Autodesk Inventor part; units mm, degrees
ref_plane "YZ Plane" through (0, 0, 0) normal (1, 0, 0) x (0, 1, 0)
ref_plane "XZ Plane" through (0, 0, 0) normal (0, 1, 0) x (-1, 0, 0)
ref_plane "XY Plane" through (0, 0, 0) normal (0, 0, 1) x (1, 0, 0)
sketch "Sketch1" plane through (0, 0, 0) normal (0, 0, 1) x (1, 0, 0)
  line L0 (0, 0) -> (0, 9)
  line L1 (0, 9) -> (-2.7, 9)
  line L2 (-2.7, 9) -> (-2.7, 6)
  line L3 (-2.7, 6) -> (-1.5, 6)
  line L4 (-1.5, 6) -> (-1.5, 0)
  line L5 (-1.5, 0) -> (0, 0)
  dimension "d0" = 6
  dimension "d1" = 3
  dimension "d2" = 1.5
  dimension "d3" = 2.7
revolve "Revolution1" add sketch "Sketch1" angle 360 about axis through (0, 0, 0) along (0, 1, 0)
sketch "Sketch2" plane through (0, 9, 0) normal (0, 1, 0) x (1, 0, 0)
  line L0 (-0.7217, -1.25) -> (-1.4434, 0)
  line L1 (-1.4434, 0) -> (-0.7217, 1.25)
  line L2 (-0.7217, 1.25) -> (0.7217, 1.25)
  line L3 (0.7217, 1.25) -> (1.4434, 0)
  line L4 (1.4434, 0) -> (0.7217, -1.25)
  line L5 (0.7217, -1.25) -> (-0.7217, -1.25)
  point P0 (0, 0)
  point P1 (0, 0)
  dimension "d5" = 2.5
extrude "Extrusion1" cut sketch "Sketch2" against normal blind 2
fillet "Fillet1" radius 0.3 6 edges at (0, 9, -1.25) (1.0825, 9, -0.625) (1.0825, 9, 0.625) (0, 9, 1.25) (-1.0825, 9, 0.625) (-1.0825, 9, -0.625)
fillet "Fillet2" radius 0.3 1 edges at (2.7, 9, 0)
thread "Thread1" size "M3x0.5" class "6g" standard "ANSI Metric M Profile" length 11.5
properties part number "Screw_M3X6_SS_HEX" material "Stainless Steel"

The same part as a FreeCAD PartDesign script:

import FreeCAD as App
import Part
import Sketcher

V = App.Vector
Q = App.Units.Quantity


def edges_at(feature, points):
    """Names of the edges that pass closest to the given points."""
    edges = feature.Shape.Edges
    near = lambda p: min(range(len(edges)), key=lambda i: edges[i].distToShape(Part.Vertex(*p))[0])
    return sorted({f"Edge{near(p) + 1}" for p in points})


def add_polygon(sketch, points):
    """Adds a closed chain of lines whose ends are joined by coincident constraints."""
    first, n = sketch.GeometryCount, len(points)
    for a, b in zip(points, points[1:] + points[:1]):
        sketch.addGeometry(Part.LineSegment(App.Vector(*a, 0), App.Vector(*b, 0)), False)
    for i in range(n):
        sketch.addConstraint(Sketcher.Constraint("Coincident", first + i, 2, first + (i + 1) % n, 1))

doc = App.newDocument("Part")
body = doc.addObject("PartDesign::Body", "Body")

# Sketch on XY plane
sketch1 = body.newObject("Sketcher::SketchObject", "Sketch")
sketch1.AttachmentSupport = (doc.getObject("XY_Plane"), [""])
sketch1.MapMode = "FlatFace"
add_polygon(sketch1, [(-1.5, 0), (0, 0), (0, 9), (-2.7, 9), (-2.7, 6), (-1.5, 6)])  # lines 0-5
sketch1.addConstraint(Sketcher.Constraint("Horizontal", 0))
sketch1.addConstraint(Sketcher.Constraint("Vertical", 1))
sketch1.addConstraint(Sketcher.Constraint("Horizontal", 2))
sketch1.addConstraint(Sketcher.Constraint("Vertical", 3))
sketch1.addConstraint(Sketcher.Constraint("Horizontal", 4))
sketch1.addConstraint(Sketcher.Constraint("Vertical", 5))
sketch1.addConstraint(Sketcher.Constraint("Coincident", 0, 2, -1, 1))
sketch1.addConstraint(Sketcher.Constraint("DistanceY", 3, 2, 3, 1, Q("3 mm")))
sketch1.addConstraint(Sketcher.Constraint("DistanceY", 5, 2, 5, 1, Q("6 mm")))
sketch1.addConstraint(Sketcher.Constraint("DistanceX", 0, 1, 0, 2, Q("1.5 mm")))
sketch1.addConstraint(Sketcher.Constraint("DistanceX", 2, 2, 2, 1, Q("2.7 mm")))
revolution = body.newObject("PartDesign::Revolution", "Revolution")
revolution.Profile = sketch1
revolution.ReferenceAxis = (sketch1, ["V_Axis"])
revolution.Angle = 360

# Sketch on XZ plane
sketch2 = body.newObject("Sketcher::SketchObject", "Sketch001")
sketch2.AttachmentSupport = (doc.getObject("XZ_Plane"), [""])
sketch2.MapMode = "FlatFace"
sketch2.AttachmentOffset = App.Placement(V(0, 0, -9), App.Rotation())
add_polygon(sketch2, [(-1.4, 0), (-0.7, 1.2), (0.7, 1.2), (1.4, 0), (0.7, -1.2), (-0.7, -1.2)])  # lines 0-5
sketch2.addConstraint(Sketcher.Constraint("Horizontal", 1))
sketch2.addConstraint(Sketcher.Constraint("Horizontal", 4))
sketch2.addConstraint(Sketcher.Constraint("Symmetric", 0, 2, 3, 2, -1, 1))
sketch2.addConstraint(Sketcher.Constraint("Symmetric", 2, 2, 5, 2, -1, 1))
sketch2.addConstraint(Sketcher.Constraint("PointOnObject", 2, 2, -1))
sketch2.addConstraint(Sketcher.Constraint("Parallel", 2, 5))
sketch2.addConstraint(Sketcher.Constraint("Vertical", 1, 2, 3, 2))
sketch2.addConstraint(Sketcher.Constraint("DistanceY", 3, 2, 1, 2, Q("2.5 mm")))
sketch2.addConstraint(Sketcher.Constraint("Angle", 0, Q("59.9996 deg")))
sketch2.addConstraint(Sketcher.Constraint("DistanceX", 1, 1, 1, 2, Q("1.4434 mm")))
pocket1 = body.newObject("PartDesign::Pocket", "Pocket")
pocket1.Profile = sketch2
pocket1.Length = 2
pocket1.Reversed = True
doc.recompute()

fillet = body.newObject("PartDesign::Fillet", "Fillet")
fillet.Base = (pocket1, edges_at(pocket1, [
    (0, 9, -1.25),
    (1.083, 9, -0.625),
    (1.083, 9, 0.625),
    (0, 9, 1.25),
    (-1.083, 9, 0.625),
    (-1.083, 9, -0.625),
]))
fillet.Radius = 0.3
doc.recompute()

fillet2 = body.newObject("PartDesign::Fillet", "Fillet001")
fillet2.Base = (fillet, edges_at(fillet, [(2.7, 9, 0)]))
fillet2.Radius = 0.3

doc.recompute()
